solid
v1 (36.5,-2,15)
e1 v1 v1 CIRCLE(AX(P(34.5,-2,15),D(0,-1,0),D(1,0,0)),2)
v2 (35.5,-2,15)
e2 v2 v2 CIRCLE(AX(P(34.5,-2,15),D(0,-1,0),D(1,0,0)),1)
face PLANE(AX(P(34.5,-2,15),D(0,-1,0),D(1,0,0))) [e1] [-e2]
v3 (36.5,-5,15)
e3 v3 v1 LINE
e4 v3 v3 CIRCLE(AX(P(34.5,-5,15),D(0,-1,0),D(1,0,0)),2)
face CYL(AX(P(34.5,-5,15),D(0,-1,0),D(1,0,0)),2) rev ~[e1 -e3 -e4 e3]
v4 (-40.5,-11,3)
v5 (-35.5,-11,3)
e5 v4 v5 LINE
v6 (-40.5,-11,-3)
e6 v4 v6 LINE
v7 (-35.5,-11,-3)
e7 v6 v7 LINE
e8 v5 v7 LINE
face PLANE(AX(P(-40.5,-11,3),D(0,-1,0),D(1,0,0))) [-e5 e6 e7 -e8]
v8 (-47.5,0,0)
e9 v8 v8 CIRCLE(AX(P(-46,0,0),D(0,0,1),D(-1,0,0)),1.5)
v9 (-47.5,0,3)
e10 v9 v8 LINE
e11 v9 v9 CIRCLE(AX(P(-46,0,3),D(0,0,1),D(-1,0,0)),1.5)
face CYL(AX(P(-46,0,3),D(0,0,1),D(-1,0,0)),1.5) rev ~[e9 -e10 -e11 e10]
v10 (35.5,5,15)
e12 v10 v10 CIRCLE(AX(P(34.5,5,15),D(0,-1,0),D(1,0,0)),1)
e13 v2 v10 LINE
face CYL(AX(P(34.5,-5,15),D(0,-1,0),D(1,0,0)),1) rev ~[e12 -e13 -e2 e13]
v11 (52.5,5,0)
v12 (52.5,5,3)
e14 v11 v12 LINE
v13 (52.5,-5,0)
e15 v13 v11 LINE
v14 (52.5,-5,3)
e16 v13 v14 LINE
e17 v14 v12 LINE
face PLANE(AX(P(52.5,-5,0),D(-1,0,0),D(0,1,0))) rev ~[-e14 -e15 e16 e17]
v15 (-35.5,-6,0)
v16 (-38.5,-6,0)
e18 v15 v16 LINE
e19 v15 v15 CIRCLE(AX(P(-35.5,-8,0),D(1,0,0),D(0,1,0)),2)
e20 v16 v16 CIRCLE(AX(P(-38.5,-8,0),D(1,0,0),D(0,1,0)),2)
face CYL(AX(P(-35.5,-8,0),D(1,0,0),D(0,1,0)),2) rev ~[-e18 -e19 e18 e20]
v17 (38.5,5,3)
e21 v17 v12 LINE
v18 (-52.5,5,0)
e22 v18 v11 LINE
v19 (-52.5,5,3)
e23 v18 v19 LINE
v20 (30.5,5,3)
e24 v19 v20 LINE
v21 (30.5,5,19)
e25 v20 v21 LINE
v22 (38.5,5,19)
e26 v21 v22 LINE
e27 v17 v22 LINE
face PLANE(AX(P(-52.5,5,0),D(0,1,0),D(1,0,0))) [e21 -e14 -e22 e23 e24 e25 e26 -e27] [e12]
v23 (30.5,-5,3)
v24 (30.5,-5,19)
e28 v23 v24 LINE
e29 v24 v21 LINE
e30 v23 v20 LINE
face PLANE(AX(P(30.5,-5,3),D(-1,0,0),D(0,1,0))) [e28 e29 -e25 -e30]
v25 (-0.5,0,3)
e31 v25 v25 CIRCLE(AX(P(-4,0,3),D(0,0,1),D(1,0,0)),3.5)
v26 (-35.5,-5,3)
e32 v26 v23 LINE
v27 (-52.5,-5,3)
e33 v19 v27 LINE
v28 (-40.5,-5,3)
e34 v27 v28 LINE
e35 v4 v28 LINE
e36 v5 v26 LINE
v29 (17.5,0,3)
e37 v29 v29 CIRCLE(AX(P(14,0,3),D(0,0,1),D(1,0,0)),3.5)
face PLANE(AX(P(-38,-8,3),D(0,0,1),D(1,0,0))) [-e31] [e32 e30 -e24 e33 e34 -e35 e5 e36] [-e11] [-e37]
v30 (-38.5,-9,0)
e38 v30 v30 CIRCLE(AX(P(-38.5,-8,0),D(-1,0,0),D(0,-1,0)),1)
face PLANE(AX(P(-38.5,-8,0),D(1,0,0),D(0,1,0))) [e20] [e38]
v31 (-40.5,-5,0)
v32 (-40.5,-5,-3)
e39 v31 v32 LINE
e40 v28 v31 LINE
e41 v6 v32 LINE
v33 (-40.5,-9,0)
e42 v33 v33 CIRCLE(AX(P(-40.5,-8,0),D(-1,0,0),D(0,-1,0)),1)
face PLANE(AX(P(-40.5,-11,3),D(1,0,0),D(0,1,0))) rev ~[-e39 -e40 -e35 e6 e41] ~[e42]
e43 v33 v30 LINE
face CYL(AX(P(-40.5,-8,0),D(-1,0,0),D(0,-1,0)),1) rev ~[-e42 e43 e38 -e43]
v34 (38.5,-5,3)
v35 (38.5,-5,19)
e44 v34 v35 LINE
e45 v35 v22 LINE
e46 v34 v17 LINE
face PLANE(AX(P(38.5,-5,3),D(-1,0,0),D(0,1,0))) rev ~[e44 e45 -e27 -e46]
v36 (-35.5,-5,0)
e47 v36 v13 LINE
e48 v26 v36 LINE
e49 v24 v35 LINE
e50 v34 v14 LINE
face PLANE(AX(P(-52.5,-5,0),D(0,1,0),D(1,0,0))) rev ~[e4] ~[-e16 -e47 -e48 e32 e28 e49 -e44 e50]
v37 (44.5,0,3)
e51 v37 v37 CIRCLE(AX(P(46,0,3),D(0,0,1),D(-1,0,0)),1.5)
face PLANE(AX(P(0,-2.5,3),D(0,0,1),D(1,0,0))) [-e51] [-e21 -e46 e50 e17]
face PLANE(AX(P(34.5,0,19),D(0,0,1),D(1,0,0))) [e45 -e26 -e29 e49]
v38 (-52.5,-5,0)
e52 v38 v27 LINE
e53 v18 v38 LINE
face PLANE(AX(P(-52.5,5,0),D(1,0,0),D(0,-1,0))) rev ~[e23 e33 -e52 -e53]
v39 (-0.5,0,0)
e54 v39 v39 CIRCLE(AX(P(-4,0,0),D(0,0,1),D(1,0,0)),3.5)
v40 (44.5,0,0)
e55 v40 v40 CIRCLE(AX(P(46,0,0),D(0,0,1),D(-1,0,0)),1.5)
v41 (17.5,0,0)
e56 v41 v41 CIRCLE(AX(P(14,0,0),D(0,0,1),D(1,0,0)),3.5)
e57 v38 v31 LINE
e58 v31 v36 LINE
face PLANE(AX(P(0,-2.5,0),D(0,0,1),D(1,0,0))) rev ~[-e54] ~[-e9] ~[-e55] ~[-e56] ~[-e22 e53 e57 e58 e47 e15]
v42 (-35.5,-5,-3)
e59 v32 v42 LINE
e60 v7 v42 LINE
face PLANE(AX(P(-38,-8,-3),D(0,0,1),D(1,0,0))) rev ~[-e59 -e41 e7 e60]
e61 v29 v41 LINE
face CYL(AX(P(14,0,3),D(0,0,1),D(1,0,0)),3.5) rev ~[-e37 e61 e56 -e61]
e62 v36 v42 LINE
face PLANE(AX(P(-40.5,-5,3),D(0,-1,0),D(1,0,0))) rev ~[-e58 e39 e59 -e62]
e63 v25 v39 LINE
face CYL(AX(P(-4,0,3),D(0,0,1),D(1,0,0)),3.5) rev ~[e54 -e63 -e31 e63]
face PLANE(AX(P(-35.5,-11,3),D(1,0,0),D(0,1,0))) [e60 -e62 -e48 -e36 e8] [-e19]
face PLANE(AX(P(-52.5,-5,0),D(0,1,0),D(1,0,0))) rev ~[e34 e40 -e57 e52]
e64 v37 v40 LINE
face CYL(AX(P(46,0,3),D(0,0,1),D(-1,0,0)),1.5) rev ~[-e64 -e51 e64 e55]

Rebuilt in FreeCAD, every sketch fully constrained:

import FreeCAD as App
import Part
import Sketcher
Q = App.Units.Quantity

doc = App.newDocument("Part")
body = doc.addObject("PartDesign::Body", "Body")

# Sketch on XY plane
sketch1 = body.newObject("Sketcher::SketchObject", "Sketch")
sketch1.AttachmentSupport = (doc.getObject("XY_Plane"), [""])
sketch1.MapMode = "FlatFace"
sketch1.addGeometry([
    Part.LineSegment(App.Vector(-52, -5, 0), App.Vector(52, -5, 0)),
    Part.LineSegment(App.Vector(52, -5, 0), App.Vector(52, 5, 0)),
    Part.LineSegment(App.Vector(52, 5, 0), App.Vector(-52, 5, 0)),
    Part.LineSegment(App.Vector(-52, 5, 0), App.Vector(-52, -5, 0)),
], False)
sketch1.addConstraint([
    Sketcher.Constraint("Coincident", 0, 2, 1, 1),
    Sketcher.Constraint("Coincident", 1, 2, 2, 1),
    Sketcher.Constraint("Coincident", 2, 2, 3, 1),
    Sketcher.Constraint("Coincident", 3, 2, 0, 1),
    Sketcher.Constraint("Horizontal", 0),
    Sketcher.Constraint("Vertical", 1),
    Sketcher.Constraint("Horizontal", 2),
    Sketcher.Constraint("Vertical", 3),
    Sketcher.Constraint("Symmetric", 0, 2, 2, 2, -1, 1),
    Sketcher.Constraint("DistanceX", 0, 1, 0, 2, Q("105 mm")),
    Sketcher.Constraint("DistanceY", 1, 1, 1, 2, Q("10 mm")),
])
pad1 = body.newObject("PartDesign::Pad", "Pad")
pad1.Profile = sketch1
pad1.Length = 3

# Sketch on XY plane
sketch2 = body.newObject("Sketcher::SketchObject", "Sketch001")
sketch2.AttachmentSupport = (doc.getObject("XY_Plane"), [""])
sketch2.MapMode = "FlatFace"
sketch2.AttachmentOffset = App.Placement(App.Vector(0, 0, 3), App.Rotation())
sketch2.addGeometry([
    Part.Circle(App.Vector(-46, 0, 0), App.Vector(0, 0, 1), 1.5),
    Part.Circle(App.Vector(46, 0, 0), App.Vector(0, 0, 1), 1.5),
], False)
sketch2.addConstraint([
    Sketcher.Constraint("Equal", 0, 1),
    Sketcher.Constraint("Symmetric", 0, 3, 1, 3, -1, 1),
    Sketcher.Constraint("PointOnObject", 0, 3, -1),
    Sketcher.Constraint("Diameter", 0, Q("3 mm")),
    Sketcher.Constraint("DistanceX", 0, 3, -1, 1, Q("46 mm")),
])
pocket1 = body.newObject("PartDesign::Pocket", "Pocket")
pocket1.Profile = sketch2
pocket1.Type = "ThroughAll"

# Sketch on XY plane
sketch3 = body.newObject("Sketcher::SketchObject", "Sketch002")
sketch3.AttachmentSupport = (doc.getObject("XY_Plane"), [""])
sketch3.MapMode = "FlatFace"
sketch3.AttachmentOffset = App.Placement(App.Vector(0, 0, 3), App.Rotation())
sketch3.addGeometry([
    Part.Circle(App.Vector(-4, 0, 0), App.Vector(0, 0, 1), 3.5),
    Part.Circle(App.Vector(14, 0, 0), App.Vector(0, 0, 1), 3.5),
], False)
sketch3.addConstraint([
    Sketcher.Constraint("Equal", 0, 1),
    Sketcher.Constraint("PointOnObject", 0, 3, -1),
    Sketcher.Constraint("PointOnObject", 1, 3, -1),
    Sketcher.Constraint("Diameter", 0, Q("7 mm")),
    Sketcher.Constraint("DistanceX", 0, 3, -1, 1, Q("4 mm")),
    Sketcher.Constraint("DistanceX", -1, 1, 1, 3, Q("14 mm")),
])
pocket2 = body.newObject("PartDesign::Pocket", "Pocket001")
pocket2.Profile = sketch3
pocket2.Type = "ThroughAll"

# Sketch on XY plane
sketch4 = body.newObject("Sketcher::SketchObject", "Sketch003")
sketch4.AttachmentSupport = (doc.getObject("XY_Plane"), [""])
sketch4.MapMode = "FlatFace"
sketch4.AttachmentOffset = App.Placement(App.Vector(0, 0, 3), App.Rotation())
sketch4.addGeometry([
    Part.Circle(App.Vector(-4, 0, 0), App.Vector(0, 0, 1), 3.5),
    Part.Circle(App.Vector(14, 0, 0), App.Vector(0, 0, 1), 3.5),
], False)
sketch4.addConstraint([
    Sketcher.Constraint("Equal", 0, 1),
    Sketcher.Constraint("PointOnObject", 0, 3, -1),
    Sketcher.Constraint("PointOnObject", 1, 3, -1),
    Sketcher.Constraint("Diameter", 0, Q("7 mm")),
    Sketcher.Constraint("DistanceX", 0, 3, -1, 1, Q("4 mm")),
    Sketcher.Constraint("DistanceX", -1, 1, 1, 3, Q("14 mm")),
])
pocket3 = body.newObject("PartDesign::Pocket", "Pocket002")
pocket3.Profile = sketch4
pocket3.Type = "ThroughAll"

# Sketch on XY plane
sketch5 = body.newObject("Sketcher::SketchObject", "Sketch004")
sketch5.AttachmentSupport = (doc.getObject("XY_Plane"), [""])
sketch5.MapMode = "FlatFace"
sketch5.AttachmentOffset = App.Placement(App.Vector(0, 0, 3), App.Rotation())
sketch5.addGeometry([
    Part.LineSegment(App.Vector(30, 5, 0), App.Vector(30, -5, 0)),
    Part.LineSegment(App.Vector(30, -5, 0), App.Vector(38, -5, 0)),
    Part.LineSegment(App.Vector(38, -5, 0), App.Vector(38, 5, 0)),
    Part.LineSegment(App.Vector(38, 5, 0), App.Vector(30, 5, 0)),
], False)
sketch5.addConstraint([
    Sketcher.Constraint("Coincident", 0, 2, 1, 1),
    Sketcher.Constraint("Coincident", 1, 2, 2, 1),
    Sketcher.Constraint("Coincident", 2, 2, 3, 1),
    Sketcher.Constraint("Coincident", 3, 2, 0, 1),
    Sketcher.Constraint("Vertical", 0),
    Sketcher.Constraint("Horizontal", 1),
    Sketcher.Constraint("Vertical", 2),
    Sketcher.Constraint("Horizontal", 3),
    Sketcher.Constraint("DistanceX", 1, 1, 1, 2, Q("8 mm")),
    Sketcher.Constraint("DistanceY", 0, 2, 0, 1, Q("10 mm")),
    Sketcher.Constraint("DistanceY", 0, 2, -1, 1, Q("5 mm")),
    Sketcher.Constraint("DistanceX", -1, 1, 0, 2, Q("30.5 mm")),
])
pad2 = body.newObject("PartDesign::Pad", "Pad001")
pad2.Profile = sketch5
pad2.Length = 16

# Sketch on XZ plane
sketch6 = body.newObject("Sketcher::SketchObject", "Sketch005")
sketch6.AttachmentSupport = (doc.getObject("XZ_Plane"), [""])
sketch6.MapMode = "FlatFace"
sketch6.AttachmentOffset = App.Placement(App.Vector(0, 0, 5), App.Rotation())
sketch6.addGeometry(Part.Circle(App.Vector(34.5, 15, 0), App.Vector(0, 0, 1), 1), False)
sketch6.addConstraint([
    Sketcher.Constraint("Diameter", 0, Q("2 mm")),
    Sketcher.Constraint("DistanceY", -1, 1, 0, 3, Q("15 mm")),
    Sketcher.Constraint("DistanceX", -1, 1, 0, 3, Q("34.5 mm")),
])
pocket4 = body.newObject("PartDesign::Pocket", "Pocket003")
pocket4.Profile = sketch6
pocket4.Type = "ThroughAll"

# Sketch on XZ plane
sketch7 = body.newObject("Sketcher::SketchObject", "Sketch006")
sketch7.AttachmentSupport = (doc.getObject("XZ_Plane"), [""])
sketch7.MapMode = "FlatFace"
sketch7.AttachmentOffset = App.Placement(App.Vector(0, 0, 5), App.Rotation())
sketch7.addGeometry(Part.Circle(App.Vector(34.5, 15, 0), App.Vector(0, 0, 1), 2), False)
sketch7.addConstraint([
    Sketcher.Constraint("Diameter", 0, Q("4 mm")),
    Sketcher.Constraint("DistanceY", -1, 1, 0, 3, Q("15 mm")),
    Sketcher.Constraint("DistanceX", -1, 1, 0, 3, Q("34.5 mm")),
])
pocket5 = body.newObject("PartDesign::Pocket", "Pocket004")
pocket5.Profile = sketch7
pocket5.Length = 3

# Sketch on XY plane
sketch8 = body.newObject("Sketcher::SketchObject", "Sketch007")
sketch8.AttachmentSupport = (doc.getObject("XY_Plane"), [""])
sketch8.MapMode = "FlatFace"
sketch8.AttachmentOffset = App.Placement(App.Vector(0, 0, 3), App.Rotation())
sketch8.addGeometry([
    Part.LineSegment(App.Vector(-40, -5, 0), App.Vector(-40, -11, 0)),
    Part.LineSegment(App.Vector(-40, -11, 0), App.Vector(-36, -11, 0)),
    Part.LineSegment(App.Vector(-36, -11, 0), App.Vector(-36, -5, 0)),
    Part.LineSegment(App.Vector(-36, -5, 0), App.Vector(-40, -5, 0)),
], False)
sketch8.addConstraint([
    Sketcher.Constraint("Coincident", 0, 2, 1, 1),
    Sketcher.Constraint("Coincident", 1, 2, 2, 1),
    Sketcher.Constraint("Coincident", 2, 2, 3, 1),
    Sketcher.Constraint("Coincident", 3, 2, 0, 1),
    Sketcher.Constraint("Vertical", 0),
    Sketcher.Constraint("Horizontal", 1),
    Sketcher.Constraint("Vertical", 2),
    Sketcher.Constraint("Horizontal", 3),
    Sketcher.Constraint("DistanceX", 1, 1, 1, 2, Q("5 mm")),
    Sketcher.Constraint("DistanceY", 0, 2, 0, 1, Q("6 mm")),
    Sketcher.Constraint("DistanceY", 0, 2, -1, 1, Q("11 mm")),
    Sketcher.Constraint("DistanceX", 0, 2, -1, 1, Q("40.5 mm")),
])
pad3 = body.newObject("PartDesign::Pad", "Pad002")
pad3.Profile = sketch8
pad3.Length = 6
pad3.Reversed = True

# Sketch on YZ plane
sketch9 = body.newObject("Sketcher::SketchObject", "Sketch008")
sketch9.AttachmentSupport = (doc.getObject("YZ_Plane"), [""])
sketch9.MapMode = "FlatFace"
sketch9.AttachmentOffset = App.Placement(App.Vector(0, 0, -40.5), App.Rotation())
sketch9.addGeometry(Part.Circle(App.Vector(-8, 0, 0), App.Vector(0, 0, 1), 1), False)
sketch9.addConstraint([
    Sketcher.Constraint("PointOnObject", 0, 3, -1),
    Sketcher.Constraint("Diameter", 0, Q("2 mm")),
    Sketcher.Constraint("DistanceX", 0, 3, -1, 1, Q("8 mm")),
])
pocket6 = body.newObject("PartDesign::Pocket", "Pocket005")
pocket6.Profile = sketch9
pocket6.Type = "ThroughAll"
pocket6.Reversed = True

# Sketch on YZ plane
sketch10 = body.newObject("Sketcher::SketchObject", "Sketch009")
sketch10.AttachmentSupport = (doc.getObject("YZ_Plane"), [""])
sketch10.MapMode = "FlatFace"
sketch10.AttachmentOffset = App.Placement(App.Vector(0, 0, -35.5), App.Rotation())
sketch10.addGeometry(Part.Circle(App.Vector(-8, 0, 0), App.Vector(0, 0, 1), 2), False)
sketch10.addConstraint([
    Sketcher.Constraint("PointOnObject", 0, 3, -1),
    Sketcher.Constraint("Diameter", 0, Q("4 mm")),
    Sketcher.Constraint("DistanceX", 0, 3, -1, 1, Q("8 mm")),
])
pocket7 = body.newObject("PartDesign::Pocket", "Pocket006")
pocket7.Profile = sketch10
pocket7.Length = 3

doc.recompute()
